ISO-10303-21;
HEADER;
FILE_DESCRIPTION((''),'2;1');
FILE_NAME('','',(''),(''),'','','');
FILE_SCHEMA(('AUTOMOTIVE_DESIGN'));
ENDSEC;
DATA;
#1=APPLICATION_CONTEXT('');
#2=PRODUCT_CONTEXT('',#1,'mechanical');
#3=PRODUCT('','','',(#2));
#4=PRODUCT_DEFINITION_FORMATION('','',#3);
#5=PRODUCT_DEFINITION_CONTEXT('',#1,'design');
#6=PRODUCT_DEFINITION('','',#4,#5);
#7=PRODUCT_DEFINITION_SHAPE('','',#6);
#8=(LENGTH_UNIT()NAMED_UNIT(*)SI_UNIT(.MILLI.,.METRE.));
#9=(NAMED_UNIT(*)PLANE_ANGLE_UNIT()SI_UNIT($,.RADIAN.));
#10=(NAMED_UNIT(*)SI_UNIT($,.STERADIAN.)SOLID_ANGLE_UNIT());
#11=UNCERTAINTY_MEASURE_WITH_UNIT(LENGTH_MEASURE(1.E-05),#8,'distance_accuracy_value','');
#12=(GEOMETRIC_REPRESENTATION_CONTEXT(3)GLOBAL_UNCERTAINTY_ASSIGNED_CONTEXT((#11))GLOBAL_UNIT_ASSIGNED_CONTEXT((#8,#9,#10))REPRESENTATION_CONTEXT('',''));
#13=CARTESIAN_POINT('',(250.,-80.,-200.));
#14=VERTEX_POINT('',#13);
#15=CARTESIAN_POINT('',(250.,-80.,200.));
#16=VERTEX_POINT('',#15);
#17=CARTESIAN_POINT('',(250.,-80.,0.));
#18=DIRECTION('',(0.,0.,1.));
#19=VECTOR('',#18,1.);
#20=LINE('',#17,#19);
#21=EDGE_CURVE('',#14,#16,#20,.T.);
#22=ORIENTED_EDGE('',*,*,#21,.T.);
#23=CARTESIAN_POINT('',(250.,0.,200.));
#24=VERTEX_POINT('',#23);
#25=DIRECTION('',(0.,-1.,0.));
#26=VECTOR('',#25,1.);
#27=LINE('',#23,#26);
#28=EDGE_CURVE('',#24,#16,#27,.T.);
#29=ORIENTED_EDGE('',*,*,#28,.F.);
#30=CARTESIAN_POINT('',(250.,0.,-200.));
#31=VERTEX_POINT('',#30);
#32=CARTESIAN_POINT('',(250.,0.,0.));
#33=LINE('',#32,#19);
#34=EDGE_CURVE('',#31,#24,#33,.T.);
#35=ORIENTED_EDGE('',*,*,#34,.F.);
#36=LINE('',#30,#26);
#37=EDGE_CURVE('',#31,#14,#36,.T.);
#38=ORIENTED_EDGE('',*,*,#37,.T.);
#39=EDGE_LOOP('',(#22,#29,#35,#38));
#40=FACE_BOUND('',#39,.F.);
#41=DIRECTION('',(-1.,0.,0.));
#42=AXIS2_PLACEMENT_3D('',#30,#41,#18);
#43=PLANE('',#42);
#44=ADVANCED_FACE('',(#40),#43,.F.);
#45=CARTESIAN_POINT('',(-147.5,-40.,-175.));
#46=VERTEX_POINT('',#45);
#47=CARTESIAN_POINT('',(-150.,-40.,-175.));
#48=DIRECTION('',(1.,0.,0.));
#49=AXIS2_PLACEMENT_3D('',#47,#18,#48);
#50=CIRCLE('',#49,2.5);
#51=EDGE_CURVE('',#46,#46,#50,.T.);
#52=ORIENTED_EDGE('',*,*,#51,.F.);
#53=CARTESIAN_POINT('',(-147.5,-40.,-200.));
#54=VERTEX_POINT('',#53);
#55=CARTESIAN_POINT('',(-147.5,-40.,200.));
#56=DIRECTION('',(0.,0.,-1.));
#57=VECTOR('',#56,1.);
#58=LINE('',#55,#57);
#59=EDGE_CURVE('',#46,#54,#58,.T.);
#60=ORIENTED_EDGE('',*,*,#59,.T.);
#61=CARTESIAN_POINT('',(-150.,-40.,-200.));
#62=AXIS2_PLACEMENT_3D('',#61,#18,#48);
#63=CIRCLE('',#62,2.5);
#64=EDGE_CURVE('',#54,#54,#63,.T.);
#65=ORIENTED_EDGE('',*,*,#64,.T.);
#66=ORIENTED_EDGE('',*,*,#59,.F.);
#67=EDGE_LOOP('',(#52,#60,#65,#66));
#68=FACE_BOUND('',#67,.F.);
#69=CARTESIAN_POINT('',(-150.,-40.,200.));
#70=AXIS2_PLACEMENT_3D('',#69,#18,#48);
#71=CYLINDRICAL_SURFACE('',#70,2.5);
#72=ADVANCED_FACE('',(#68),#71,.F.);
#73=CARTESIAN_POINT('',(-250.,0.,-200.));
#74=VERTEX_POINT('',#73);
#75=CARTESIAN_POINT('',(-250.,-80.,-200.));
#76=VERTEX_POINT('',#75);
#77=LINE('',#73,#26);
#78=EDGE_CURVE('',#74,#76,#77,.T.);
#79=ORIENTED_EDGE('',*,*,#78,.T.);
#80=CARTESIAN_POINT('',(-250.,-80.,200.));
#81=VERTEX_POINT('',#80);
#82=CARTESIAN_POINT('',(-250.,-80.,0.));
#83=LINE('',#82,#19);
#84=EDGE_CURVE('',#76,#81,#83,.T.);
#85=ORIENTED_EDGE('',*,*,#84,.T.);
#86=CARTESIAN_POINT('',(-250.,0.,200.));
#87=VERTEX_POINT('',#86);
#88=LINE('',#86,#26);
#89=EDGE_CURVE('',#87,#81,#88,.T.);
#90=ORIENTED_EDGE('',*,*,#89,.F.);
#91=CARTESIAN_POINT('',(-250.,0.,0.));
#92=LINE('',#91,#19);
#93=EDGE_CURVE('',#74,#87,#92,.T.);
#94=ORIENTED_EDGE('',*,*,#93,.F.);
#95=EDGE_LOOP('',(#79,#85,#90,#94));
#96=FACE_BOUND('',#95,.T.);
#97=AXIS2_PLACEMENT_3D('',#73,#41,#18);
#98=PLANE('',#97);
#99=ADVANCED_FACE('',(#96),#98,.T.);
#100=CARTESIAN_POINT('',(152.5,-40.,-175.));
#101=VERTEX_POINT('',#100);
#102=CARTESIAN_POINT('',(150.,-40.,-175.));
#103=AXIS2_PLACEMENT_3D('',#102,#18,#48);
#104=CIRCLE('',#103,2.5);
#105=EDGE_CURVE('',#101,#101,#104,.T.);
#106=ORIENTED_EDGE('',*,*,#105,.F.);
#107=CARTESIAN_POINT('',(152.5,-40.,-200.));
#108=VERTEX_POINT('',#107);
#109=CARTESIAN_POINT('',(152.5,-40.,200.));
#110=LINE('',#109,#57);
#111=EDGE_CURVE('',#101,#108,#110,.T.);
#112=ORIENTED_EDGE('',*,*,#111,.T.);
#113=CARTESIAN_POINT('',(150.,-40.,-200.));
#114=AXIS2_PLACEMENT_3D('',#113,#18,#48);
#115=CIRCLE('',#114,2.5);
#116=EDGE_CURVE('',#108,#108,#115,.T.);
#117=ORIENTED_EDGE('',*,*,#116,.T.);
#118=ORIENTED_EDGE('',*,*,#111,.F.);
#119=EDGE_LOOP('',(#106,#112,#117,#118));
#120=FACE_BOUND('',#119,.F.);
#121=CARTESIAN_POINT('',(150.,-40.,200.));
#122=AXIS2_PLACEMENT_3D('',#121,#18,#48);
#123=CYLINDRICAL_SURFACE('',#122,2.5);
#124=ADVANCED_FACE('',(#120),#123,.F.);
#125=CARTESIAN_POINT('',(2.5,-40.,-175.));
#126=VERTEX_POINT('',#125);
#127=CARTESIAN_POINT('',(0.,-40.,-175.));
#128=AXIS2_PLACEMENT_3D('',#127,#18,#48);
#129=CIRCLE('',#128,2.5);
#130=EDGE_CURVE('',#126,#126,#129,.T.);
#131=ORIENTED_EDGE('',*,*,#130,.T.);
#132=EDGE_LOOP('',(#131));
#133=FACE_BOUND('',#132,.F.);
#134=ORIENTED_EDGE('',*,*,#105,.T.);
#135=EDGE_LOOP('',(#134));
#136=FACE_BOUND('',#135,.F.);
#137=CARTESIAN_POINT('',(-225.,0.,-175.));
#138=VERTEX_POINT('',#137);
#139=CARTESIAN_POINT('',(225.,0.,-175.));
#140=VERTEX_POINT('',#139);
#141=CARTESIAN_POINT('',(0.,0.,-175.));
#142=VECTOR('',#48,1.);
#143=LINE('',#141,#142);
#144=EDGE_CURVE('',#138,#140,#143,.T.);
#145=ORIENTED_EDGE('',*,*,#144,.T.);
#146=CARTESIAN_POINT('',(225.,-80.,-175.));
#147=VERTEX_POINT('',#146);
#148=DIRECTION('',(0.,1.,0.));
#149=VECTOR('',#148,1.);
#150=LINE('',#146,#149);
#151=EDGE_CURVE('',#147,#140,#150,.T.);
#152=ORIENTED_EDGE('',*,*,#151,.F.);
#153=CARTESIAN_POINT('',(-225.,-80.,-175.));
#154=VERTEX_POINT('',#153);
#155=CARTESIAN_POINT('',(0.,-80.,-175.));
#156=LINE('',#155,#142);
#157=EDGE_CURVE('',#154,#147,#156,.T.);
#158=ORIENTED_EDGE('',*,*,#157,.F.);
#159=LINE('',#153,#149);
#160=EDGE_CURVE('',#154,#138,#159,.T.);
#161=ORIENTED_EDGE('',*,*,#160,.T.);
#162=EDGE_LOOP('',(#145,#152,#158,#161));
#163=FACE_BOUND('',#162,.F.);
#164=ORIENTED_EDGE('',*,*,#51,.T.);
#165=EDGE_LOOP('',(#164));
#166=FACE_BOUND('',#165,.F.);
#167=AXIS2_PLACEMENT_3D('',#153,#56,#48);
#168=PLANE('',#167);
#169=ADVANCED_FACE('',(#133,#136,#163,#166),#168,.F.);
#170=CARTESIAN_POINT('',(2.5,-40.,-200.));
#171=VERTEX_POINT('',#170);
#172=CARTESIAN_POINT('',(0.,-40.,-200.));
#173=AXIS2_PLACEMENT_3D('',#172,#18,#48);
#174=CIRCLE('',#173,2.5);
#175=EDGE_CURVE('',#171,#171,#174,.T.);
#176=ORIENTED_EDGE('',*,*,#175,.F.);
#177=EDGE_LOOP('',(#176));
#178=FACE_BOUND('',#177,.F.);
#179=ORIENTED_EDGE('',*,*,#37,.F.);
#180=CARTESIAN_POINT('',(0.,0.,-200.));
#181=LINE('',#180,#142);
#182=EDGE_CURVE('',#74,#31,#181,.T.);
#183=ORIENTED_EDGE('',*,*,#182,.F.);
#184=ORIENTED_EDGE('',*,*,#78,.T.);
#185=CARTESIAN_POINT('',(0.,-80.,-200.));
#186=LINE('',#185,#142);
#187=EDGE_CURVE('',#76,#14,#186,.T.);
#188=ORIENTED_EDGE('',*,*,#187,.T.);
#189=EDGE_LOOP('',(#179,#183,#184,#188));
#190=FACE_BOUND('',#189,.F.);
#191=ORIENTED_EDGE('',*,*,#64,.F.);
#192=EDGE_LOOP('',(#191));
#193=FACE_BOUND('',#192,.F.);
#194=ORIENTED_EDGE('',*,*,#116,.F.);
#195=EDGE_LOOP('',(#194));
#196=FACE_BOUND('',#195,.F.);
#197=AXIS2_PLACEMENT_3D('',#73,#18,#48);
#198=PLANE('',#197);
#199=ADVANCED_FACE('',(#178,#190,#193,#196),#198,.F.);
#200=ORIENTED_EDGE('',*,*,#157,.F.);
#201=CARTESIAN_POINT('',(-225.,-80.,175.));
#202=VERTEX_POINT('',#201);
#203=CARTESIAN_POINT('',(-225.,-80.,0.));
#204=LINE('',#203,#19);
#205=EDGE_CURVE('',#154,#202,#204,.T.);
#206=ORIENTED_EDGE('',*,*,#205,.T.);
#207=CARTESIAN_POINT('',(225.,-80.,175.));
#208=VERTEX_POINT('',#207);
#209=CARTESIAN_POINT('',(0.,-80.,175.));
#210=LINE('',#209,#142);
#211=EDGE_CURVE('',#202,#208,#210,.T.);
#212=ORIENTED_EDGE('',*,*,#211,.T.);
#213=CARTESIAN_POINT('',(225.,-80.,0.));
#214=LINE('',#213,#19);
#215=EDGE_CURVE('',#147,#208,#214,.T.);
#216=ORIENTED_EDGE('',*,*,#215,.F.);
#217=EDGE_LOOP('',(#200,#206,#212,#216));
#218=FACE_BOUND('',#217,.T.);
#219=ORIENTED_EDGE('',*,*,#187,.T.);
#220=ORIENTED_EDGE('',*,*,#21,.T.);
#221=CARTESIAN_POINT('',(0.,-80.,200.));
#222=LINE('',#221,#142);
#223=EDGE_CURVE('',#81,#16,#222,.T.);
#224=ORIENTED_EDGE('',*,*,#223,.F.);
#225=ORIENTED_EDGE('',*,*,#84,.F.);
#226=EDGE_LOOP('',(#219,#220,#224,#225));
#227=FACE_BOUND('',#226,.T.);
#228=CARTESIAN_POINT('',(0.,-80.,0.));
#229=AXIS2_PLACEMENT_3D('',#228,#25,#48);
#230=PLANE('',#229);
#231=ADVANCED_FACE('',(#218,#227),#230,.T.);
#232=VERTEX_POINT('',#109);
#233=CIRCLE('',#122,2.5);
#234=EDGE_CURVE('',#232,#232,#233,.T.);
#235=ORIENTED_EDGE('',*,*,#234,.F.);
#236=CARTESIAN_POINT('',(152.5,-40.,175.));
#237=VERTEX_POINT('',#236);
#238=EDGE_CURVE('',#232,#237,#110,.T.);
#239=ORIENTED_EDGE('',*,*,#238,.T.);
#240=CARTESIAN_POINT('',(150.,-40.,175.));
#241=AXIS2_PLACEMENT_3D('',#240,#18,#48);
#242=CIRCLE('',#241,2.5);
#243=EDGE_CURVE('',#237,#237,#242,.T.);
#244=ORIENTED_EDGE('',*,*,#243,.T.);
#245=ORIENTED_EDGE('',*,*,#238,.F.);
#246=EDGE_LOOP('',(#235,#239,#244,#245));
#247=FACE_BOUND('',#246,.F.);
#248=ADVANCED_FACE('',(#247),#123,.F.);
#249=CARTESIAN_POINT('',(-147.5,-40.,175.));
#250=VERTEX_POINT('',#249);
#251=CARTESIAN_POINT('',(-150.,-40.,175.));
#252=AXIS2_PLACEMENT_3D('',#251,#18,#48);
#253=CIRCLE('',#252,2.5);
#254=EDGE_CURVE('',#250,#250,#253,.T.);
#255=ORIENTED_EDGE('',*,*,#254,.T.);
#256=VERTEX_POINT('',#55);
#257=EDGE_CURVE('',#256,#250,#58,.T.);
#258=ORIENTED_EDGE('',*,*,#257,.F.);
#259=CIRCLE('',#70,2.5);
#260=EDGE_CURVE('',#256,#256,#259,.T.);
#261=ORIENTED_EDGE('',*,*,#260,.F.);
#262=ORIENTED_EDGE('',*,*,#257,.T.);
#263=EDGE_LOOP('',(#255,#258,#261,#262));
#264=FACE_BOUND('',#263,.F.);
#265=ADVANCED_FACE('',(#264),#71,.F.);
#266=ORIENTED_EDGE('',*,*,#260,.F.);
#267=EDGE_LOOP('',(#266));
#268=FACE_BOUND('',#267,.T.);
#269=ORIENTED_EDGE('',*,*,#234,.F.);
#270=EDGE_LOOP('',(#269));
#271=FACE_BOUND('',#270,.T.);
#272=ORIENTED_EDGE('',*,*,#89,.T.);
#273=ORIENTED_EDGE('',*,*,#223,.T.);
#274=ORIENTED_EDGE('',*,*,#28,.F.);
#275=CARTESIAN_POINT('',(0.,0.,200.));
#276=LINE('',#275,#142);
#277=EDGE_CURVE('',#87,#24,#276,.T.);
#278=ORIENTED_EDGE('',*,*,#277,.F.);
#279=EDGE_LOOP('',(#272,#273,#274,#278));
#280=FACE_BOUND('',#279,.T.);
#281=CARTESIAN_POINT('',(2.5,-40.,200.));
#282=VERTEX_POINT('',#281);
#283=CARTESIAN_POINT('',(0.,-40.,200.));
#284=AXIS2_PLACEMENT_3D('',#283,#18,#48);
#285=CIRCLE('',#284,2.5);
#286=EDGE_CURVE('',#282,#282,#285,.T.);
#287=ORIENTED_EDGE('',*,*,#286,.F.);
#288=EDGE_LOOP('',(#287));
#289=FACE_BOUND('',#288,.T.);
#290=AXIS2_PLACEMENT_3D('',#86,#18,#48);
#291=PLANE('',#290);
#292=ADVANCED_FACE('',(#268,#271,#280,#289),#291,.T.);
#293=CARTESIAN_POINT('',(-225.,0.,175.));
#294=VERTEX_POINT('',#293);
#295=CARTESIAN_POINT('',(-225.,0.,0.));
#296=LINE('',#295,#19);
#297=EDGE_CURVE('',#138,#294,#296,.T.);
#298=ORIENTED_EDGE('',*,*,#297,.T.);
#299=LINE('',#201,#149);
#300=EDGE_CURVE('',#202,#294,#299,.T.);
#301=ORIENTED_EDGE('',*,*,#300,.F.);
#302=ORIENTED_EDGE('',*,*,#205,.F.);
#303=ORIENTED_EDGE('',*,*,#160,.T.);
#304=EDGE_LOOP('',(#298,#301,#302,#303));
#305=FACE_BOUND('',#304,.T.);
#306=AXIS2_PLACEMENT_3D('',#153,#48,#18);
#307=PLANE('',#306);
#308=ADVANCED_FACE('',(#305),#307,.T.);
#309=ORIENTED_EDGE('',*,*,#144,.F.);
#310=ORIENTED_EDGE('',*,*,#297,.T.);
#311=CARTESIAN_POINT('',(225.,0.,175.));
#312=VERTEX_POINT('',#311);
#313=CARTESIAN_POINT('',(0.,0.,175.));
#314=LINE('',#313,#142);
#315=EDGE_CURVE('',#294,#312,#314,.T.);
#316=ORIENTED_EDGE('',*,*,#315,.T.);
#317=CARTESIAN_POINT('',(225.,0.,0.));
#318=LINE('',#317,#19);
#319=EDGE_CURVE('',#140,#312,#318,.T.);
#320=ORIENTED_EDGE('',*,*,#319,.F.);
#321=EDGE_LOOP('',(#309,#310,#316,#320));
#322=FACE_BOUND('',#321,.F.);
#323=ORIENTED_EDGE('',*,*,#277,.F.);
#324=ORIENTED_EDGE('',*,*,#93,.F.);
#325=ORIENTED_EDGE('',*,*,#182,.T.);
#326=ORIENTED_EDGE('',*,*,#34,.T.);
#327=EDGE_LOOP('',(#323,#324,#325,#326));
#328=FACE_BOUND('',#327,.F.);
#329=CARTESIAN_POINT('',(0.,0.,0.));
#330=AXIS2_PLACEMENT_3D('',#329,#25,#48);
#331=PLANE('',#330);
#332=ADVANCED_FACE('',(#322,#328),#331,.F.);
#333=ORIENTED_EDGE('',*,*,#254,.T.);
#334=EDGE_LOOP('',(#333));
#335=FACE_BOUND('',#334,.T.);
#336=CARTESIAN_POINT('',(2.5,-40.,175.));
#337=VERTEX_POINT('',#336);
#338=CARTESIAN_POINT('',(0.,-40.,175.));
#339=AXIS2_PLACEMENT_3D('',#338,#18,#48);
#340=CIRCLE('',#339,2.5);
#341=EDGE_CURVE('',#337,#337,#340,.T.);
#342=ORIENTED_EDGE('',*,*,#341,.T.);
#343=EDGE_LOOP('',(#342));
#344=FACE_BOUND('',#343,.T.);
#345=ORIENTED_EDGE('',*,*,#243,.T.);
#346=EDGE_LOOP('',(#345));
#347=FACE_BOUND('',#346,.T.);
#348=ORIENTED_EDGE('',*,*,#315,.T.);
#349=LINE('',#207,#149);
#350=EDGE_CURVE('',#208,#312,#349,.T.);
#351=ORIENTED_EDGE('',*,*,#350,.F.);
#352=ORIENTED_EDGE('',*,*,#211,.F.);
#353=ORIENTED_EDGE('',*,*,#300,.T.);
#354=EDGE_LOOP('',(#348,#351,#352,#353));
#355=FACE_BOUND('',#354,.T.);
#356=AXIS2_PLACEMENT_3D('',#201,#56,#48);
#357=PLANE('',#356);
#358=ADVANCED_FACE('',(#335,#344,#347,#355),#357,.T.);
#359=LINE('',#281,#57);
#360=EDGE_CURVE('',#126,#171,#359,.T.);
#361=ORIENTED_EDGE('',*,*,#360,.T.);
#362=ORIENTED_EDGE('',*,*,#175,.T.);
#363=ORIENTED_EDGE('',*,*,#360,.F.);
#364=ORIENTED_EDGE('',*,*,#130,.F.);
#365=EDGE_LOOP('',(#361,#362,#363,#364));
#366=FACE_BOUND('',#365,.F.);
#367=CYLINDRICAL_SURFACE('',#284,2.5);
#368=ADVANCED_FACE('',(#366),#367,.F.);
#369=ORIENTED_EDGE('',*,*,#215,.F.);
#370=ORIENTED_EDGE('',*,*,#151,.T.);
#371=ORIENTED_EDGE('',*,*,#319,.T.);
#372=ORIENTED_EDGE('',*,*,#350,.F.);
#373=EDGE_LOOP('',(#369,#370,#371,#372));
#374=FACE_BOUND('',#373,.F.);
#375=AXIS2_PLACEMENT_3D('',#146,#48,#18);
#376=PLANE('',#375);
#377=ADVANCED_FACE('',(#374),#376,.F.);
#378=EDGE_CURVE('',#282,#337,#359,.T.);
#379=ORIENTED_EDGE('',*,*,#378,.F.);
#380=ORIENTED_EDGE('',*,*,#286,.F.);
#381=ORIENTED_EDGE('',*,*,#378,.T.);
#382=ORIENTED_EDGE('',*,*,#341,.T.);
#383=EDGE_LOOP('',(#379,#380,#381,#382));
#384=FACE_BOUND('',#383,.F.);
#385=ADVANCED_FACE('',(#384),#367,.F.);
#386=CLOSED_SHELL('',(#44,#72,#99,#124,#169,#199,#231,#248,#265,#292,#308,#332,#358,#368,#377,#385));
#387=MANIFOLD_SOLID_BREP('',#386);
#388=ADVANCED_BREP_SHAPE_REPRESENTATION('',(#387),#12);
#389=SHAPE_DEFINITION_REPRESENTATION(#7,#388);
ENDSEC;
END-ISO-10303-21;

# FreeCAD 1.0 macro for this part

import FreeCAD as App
import Part
import Sketcher
Q = App.Units.Quantity


def add_polygon(sketch, points):
    """Adds a closed chain of lines whose ends are joined by coincident constraints."""
    first, n = sketch.GeometryCount, len(points)
    for a, b in zip(points, points[1:] + points[:1]):
        sketch.addGeometry(Part.LineSegment(App.Vector(*a, 0), App.Vector(*b, 0)), False)
    for i in range(n):
        sketch.addConstraint(Sketcher.Constraint("Coincident", first + i, 2, first + (i + 1) % n, 1))

doc = App.newDocument("Part")
body = doc.addObject("PartDesign::Body", "Body")

sketch1 = doc.addObject("Sketcher::SketchObject", "Sketch")
body.addObject(sketch1)
sketch1.AttachmentSupport = (doc.XZ_Plane, [""])
sketch1.MapMode = "FlatFace"
add_polygon(sketch1, [(-250, 200), (-250, -200), (250, -200), (250, 200)])
sketch1.addConstraint(Sketcher.Constraint("Vertical", 0))
sketch1.addConstraint(Sketcher.Constraint("Horizontal", 1))
sketch1.addConstraint(Sketcher.Constraint("Vertical", 2))
sketch1.addConstraint(Sketcher.Constraint("Horizontal", 3))
sketch1.addConstraint(Sketcher.Constraint("Symmetric", 0, 2, 2, 2, -1, 1))
sketch1.addConstraint(Sketcher.Constraint("DistanceX", 1, 1, 1, 2, Q("500 mm")))
sketch1.addConstraint(Sketcher.Constraint("DistanceY", 0, 2, 0, 1, Q("400 mm")))
pad1 = doc.addObject("PartDesign::Pad", "Pad")
body.addObject(pad1)
pad1.Profile = sketch1
pad1.Length = 80

sketch2 = doc.addObject("Sketcher::SketchObject", "Sketch001")
body.addObject(sketch2)
sketch2.AttachmentSupport = (doc.XZ_Plane, [""])
sketch2.MapMode = "FlatFace"
sketch2.AttachmentOffset = App.Placement(App.Vector(0, 0, 80), App.Rotation())
add_polygon(sketch2, [(-225, 175), (-225, -175), (225, -175), (225, 175)])
sketch2.addConstraint(Sketcher.Constraint("Vertical", 0))
sketch2.addConstraint(Sketcher.Constraint("Horizontal", 1))
sketch2.addConstraint(Sketcher.Constraint("Vertical", 2))
sketch2.addConstraint(Sketcher.Constraint("Horizontal", 3))
sketch2.addConstraint(Sketcher.Constraint("Symmetric", 0, 2, 2, 2, -1, 1))
sketch2.addConstraint(Sketcher.Constraint("DistanceX", 1, 1, 1, 2, Q("450 mm")))
sketch2.addConstraint(Sketcher.Constraint("DistanceY", 0, 2, 0, 1, Q("350 mm")))
pocket1 = doc.addObject("PartDesign::Pocket", "Pocket")
body.addObject(pocket1)
pocket1.Profile = sketch2
pocket1.Type = "ThroughAll"

sketch3 = doc.addObject("Sketcher::SketchObject", "Sketch002")
body.addObject(sketch3)
sketch3.AttachmentSupport = (doc.XY_Plane, [""])
sketch3.MapMode = "FlatFace"
sketch3.AttachmentOffset = App.Placement(App.Vector(0, 0, 200), App.Rotation())
sketch3.addGeometry(Part.Circle(App.Vector(-150, -40, 0), App.Vector(0, 0, 1), 2.5), False)
sketch3.addGeometry(Part.Circle(App.Vector(0, -40, 0), App.Vector(0, 0, 1), 2.5), False)
sketch3.addGeometry(Part.Circle(App.Vector(150, -40, 0), App.Vector(0, 0, 1), 2.5), False)
sketch3.addConstraint(Sketcher.Constraint("Equal", 0, 1))
sketch3.addConstraint(Sketcher.Constraint("Equal", 1, 2))
sketch3.addConstraint(Sketcher.Constraint("Symmetric", 0, 3, 2, 3, -2))
sketch3.addConstraint(Sketcher.Constraint("PointOnObject", 1, 3, -2))
sketch3.addConstraint(Sketcher.Constraint("Horizontal", 0, 3, 1, 3))
sketch3.addConstraint(Sketcher.Constraint("Diameter", 0, Q("5 mm")))
sketch3.addConstraint(Sketcher.Constraint("DistanceX", 0, 3, -1, 1, Q("150 mm")))
sketch3.addConstraint(Sketcher.Constraint("DistanceY", 0, 3, -1, 1, Q("40 mm")))
pocket2 = doc.addObject("PartDesign::Pocket", "Pocket001")
body.addObject(pocket2)
pocket2.Profile = sketch3
pocket2.Type = "ThroughAll"

doc.recompute()
